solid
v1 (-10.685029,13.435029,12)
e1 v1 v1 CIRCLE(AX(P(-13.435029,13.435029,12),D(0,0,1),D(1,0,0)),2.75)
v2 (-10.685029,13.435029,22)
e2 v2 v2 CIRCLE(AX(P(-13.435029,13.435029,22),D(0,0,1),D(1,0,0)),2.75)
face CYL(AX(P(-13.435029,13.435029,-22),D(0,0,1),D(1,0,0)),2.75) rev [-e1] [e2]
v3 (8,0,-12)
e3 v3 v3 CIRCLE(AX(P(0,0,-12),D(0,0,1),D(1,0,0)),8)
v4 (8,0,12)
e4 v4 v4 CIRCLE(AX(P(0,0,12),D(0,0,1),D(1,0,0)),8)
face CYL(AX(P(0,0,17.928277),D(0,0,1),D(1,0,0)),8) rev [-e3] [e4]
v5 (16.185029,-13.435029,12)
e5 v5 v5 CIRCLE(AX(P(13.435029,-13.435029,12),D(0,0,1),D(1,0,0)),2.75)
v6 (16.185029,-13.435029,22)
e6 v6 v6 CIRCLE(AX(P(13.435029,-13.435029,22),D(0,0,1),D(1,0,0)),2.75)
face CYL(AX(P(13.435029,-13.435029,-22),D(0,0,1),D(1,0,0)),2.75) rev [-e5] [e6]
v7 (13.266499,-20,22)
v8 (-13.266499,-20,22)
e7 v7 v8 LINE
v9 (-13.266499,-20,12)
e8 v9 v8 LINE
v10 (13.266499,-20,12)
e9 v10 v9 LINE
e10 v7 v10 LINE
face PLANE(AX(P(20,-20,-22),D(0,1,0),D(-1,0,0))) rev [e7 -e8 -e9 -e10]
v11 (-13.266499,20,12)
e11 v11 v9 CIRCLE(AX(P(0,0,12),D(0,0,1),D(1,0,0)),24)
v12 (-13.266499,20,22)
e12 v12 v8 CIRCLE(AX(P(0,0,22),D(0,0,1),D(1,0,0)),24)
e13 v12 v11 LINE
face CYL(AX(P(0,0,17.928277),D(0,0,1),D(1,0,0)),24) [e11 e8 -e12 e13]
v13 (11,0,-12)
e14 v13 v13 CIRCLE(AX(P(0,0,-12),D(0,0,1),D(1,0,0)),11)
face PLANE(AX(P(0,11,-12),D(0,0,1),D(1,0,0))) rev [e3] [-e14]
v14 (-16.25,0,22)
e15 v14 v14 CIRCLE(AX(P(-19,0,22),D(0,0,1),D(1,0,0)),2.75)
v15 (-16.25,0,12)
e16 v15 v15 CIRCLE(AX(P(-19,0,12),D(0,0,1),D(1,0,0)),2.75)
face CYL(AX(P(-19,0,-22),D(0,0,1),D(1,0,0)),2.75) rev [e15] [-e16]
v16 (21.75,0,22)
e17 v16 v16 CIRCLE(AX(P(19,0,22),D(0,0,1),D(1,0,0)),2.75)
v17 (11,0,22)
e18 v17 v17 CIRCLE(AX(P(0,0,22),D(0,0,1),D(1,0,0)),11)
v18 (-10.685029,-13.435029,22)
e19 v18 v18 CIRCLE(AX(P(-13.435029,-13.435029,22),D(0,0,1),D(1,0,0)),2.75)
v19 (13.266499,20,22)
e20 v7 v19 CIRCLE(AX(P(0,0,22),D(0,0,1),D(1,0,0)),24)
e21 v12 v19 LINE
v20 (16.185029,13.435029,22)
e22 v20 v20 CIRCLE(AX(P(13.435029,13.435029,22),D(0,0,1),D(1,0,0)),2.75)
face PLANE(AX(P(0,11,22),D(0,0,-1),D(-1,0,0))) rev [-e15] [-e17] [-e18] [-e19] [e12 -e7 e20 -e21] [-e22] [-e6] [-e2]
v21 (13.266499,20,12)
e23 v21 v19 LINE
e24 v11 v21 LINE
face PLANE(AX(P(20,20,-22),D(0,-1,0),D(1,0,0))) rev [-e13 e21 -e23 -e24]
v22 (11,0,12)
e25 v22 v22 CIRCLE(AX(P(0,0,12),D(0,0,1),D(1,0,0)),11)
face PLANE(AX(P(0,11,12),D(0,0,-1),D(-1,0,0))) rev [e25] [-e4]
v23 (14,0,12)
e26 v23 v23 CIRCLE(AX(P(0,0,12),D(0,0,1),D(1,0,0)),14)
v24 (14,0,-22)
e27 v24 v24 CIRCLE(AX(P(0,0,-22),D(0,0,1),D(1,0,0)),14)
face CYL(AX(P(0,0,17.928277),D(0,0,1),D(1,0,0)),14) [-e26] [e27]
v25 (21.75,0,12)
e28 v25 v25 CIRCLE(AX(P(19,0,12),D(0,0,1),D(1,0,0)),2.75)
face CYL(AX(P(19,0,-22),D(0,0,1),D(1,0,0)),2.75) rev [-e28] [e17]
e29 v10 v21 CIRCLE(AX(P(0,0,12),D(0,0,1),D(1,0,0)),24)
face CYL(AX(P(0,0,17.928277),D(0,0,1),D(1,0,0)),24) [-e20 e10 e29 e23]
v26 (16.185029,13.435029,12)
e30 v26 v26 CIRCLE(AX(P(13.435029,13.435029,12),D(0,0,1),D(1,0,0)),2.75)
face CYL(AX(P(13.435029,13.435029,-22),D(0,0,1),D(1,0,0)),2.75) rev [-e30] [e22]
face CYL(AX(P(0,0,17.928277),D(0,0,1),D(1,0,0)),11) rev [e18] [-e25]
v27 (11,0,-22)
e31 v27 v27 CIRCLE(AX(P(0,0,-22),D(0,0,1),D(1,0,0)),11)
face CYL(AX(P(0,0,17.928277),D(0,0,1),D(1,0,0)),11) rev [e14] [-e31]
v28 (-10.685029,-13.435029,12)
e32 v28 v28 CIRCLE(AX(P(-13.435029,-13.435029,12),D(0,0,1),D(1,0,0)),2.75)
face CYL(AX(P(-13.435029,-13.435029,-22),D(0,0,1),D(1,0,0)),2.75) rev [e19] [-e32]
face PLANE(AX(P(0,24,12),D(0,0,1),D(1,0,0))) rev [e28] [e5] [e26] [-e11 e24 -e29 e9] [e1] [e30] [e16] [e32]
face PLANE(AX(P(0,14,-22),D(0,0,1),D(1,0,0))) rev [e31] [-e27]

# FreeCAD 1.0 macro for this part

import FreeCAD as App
import Part
import Sketcher
from FreeCAD import Vector

doc = App.newDocument("Part")
params = doc.addObject("Spreadsheet::Sheet", "Params")
for row, (alias, value) in enumerate([
    ("sketch1_width", "3 mm"),
    ("sketch1_width2", "10 mm"),
    ("sketch1_height", "34 mm"),
    ("revolution_angle", "360 deg"),
    ("sketch2_width", "40 mm"),
    ("sketch2_height", "10 mm"),
    ("sketch3_diameter", "5.5 mm"),
], start=1):
    params.set(f"A{row}", alias)
    params.set(f"B{row}", "=" + value)
    params.setAlias(f"B{row}", alias)

body = doc.addObject("PartDesign::Body", "Body")

sketch1 = doc.addObject("Sketcher::SketchObject", "Sketch")
body.addObject(sketch1)
sketch1.AttachmentSupport = (doc.YZ_Plane, [""])
sketch1.MapMode = "FlatFace"
sketch1.addGeometry(Part.LineSegment(Vector(11, -12, 0), Vector(11, -22, 0)), False)
sketch1.addGeometry(Part.LineSegment(Vector(11, -22, 0), Vector(14, -22, 0)), False)
sketch1.addGeometry(Part.LineSegment(Vector(14, -22, 0), Vector(14, 12, 0)), False)
sketch1.addGeometry(Part.LineSegment(Vector(14, 12, 0), Vector(24, 12, 0)), False)
sketch1.addGeometry(Part.LineSegment(Vector(24, 12, 0), Vector(24, 22, 0)), False)
sketch1.addGeometry(Part.LineSegment(Vector(24, 22, 0), Vector(11, 22, 0)), False)
sketch1.addGeometry(Part.LineSegment(Vector(11, 22, 0), Vector(11, 12, 0)), False)
sketch1.addGeometry(Part.LineSegment(Vector(11, 12, 0), Vector(8, 12, 0)), False)
sketch1.addGeometry(Part.LineSegment(Vector(8, 12, 0), Vector(8, -12, 0)), False)
sketch1.addGeometry(Part.LineSegment(Vector(8, -12, 0), Vector(11, -12, 0)), False)
sketch1.addConstraint(Sketcher.Constraint("Coincident", 0, 2, 1, 1))
sketch1.addConstraint(Sketcher.Constraint("Coincident", 1, 2, 2, 1))
sketch1.addConstraint(Sketcher.Constraint("Coincident", 2, 2, 3, 1))
sketch1.addConstraint(Sketcher.Constraint("Coincident", 3, 2, 4, 1))
sketch1.addConstraint(Sketcher.Constraint("Coincident", 4, 2, 5, 1))
sketch1.addConstraint(Sketcher.Constraint("Coincident", 5, 2, 6, 1))
sketch1.addConstraint(Sketcher.Constraint("Coincident", 6, 2, 7, 1))
sketch1.addConstraint(Sketcher.Constraint("Coincident", 7, 2, 8, 1))
sketch1.addConstraint(Sketcher.Constraint("Coincident", 8, 2, 9, 1))
sketch1.addConstraint(Sketcher.Constraint("Coincident", 9, 2, 0, 1))
sketch1.addConstraint(Sketcher.Constraint("Vertical", 0))
sketch1.addConstraint(Sketcher.Constraint("Horizontal", 1))
sketch1.addConstraint(Sketcher.Constraint("Vertical", 2))
sketch1.addConstraint(Sketcher.Constraint("Horizontal", 3))
sketch1.addConstraint(Sketcher.Constraint("Vertical", 4))
sketch1.addConstraint(Sketcher.Constraint("Horizontal", 5))
sketch1.addConstraint(Sketcher.Constraint("Vertical", 6))
sketch1.addConstraint(Sketcher.Constraint("Horizontal", 7))
sketch1.addConstraint(Sketcher.Constraint("Vertical", 8))
sketch1.addConstraint(Sketcher.Constraint("Horizontal", 9))
sketch1.addConstraint(Sketcher.Constraint("Symmetric", 0, 2, 5, 2, -1))
sketch1.addConstraint(Sketcher.Constraint("Horizontal", 3, 2, 6, 2))
sketch1.addConstraint(Sketcher.Constraint("Equal", 1, 7))
sketch1.addConstraint(Sketcher.Constraint("Equal", 3, 0))
sketch1.addConstraint(Sketcher.Constraint("Equal", 0, 4))
sketch1.addConstraint(Sketcher.Constraint("DistanceX", 1, 1, 1, 2, 3.0))
sketch1.addConstraint(Sketcher.Constraint("DistanceX", 3, 1, 3, 2, 10.0))
sketch1.addConstraint(Sketcher.Constraint("DistanceY", 2, 1, 2, 2, 34.0))
sketch1.addConstraint(Sketcher.Constraint("DistanceX", -1, 1, 0, 2, 11.0))
sketch1.setExpression("Constraints[25]", "Params.sketch1_width")
sketch1.setExpression("Constraints[26]", "Params.sketch1_width2")
sketch1.setExpression("Constraints[27]", "Params.sketch1_height")
revolution = doc.addObject("PartDesign::Revolution", "Revolution")
body.addObject(revolution)
revolution.Profile = sketch1
revolution.ReferenceAxis = (sketch1, ["V_Axis"])
revolution.setExpression("Angle", "Params.revolution_angle")

sketch2 = doc.addObject("Sketcher::SketchObject", "Sketch001")
body.addObject(sketch2)
sketch2.AttachmentSupport = (doc.XY_Plane, [""])
sketch2.MapMode = "FlatFace"
sketch2.AttachmentOffset = App.Placement(Vector(0, 0, 22), App.Rotation())
sketch2.addGeometry(Part.LineSegment(Vector(-20, 30, 0), Vector(-20, 20, 0)), False)
sketch2.addGeometry(Part.LineSegment(Vector(-20, 20, 0), Vector(20, 20, 0)), False)
sketch2.addGeometry(Part.LineSegment(Vector(20, 20, 0), Vector(20, 30, 0)), False)
sketch2.addGeometry(Part.LineSegment(Vector(20, 30, 0), Vector(-20, 30, 0)), False)
sketch2.addGeometry(Part.LineSegment(Vector(-20, -20, 0), Vector(-20, -30, 0)), False)
sketch2.addGeometry(Part.LineSegment(Vector(-20, -30, 0), Vector(20, -30, 0)), False)
sketch2.addGeometry(Part.LineSegment(Vector(20, -30, 0), Vector(20, -20, 0)), False)
sketch2.addGeometry(Part.LineSegment(Vector(20, -20, 0), Vector(-20, -20, 0)), False)
sketch2.addConstraint(Sketcher.Constraint("Coincident", 0, 2, 1, 1))
sketch2.addConstraint(Sketcher.Constraint("Coincident", 1, 2, 2, 1))
sketch2.addConstraint(Sketcher.Constraint("Coincident", 2, 2, 3, 1))
sketch2.addConstraint(Sketcher.Constraint("Coincident", 3, 2, 0, 1))
sketch2.addConstraint(Sketcher.Constraint("Coincident", 4, 2, 5, 1))
sketch2.addConstraint(Sketcher.Constraint("Coincident", 5, 2, 6, 1))
sketch2.addConstraint(Sketcher.Constraint("Coincident", 6, 2, 7, 1))
sketch2.addConstraint(Sketcher.Constraint("Coincident", 7, 2, 4, 1))
sketch2.addConstraint(Sketcher.Constraint("Vertical", 0))
sketch2.addConstraint(Sketcher.Constraint("Horizontal", 1))
sketch2.addConstraint(Sketcher.Constraint("Vertical", 2))
sketch2.addConstraint(Sketcher.Constraint("Horizontal", 3))
sketch2.addConstraint(Sketcher.Constraint("Vertical", 4))
sketch2.addConstraint(Sketcher.Constraint("Horizontal", 5))
sketch2.addConstraint(Sketcher.Constraint("Vertical", 6))
sketch2.addConstraint(Sketcher.Constraint("Horizontal", 7))
sketch2.addConstraint(Sketcher.Constraint("Symmetric", 2, 2, 4, 2, -1, 1))
sketch2.addConstraint(Sketcher.Constraint("Symmetric", 0, 2, 6, 2, -1, 1))
sketch2.addConstraint(Sketcher.Constraint("Vertical", 3, 2, 4, 2))
sketch2.addConstraint(Sketcher.Constraint("DistanceX", 1, 1, 1, 2, 40.0))
sketch2.addConstraint(Sketcher.Constraint("DistanceY", 0, 2, 0, 1, 10.0))
sketch2.addConstraint(Sketcher.Constraint("DistanceY", -1, 1, 0, 2, 20.0))
sketch2.setExpression("Constraints[19]", "Params.sketch2_width")
sketch2.setExpression("Constraints[20]", "Params.sketch2_height")
pocket1 = doc.addObject("PartDesign::Pocket", "Pocket")
body.addObject(pocket1)
pocket1.Profile = sketch2
pocket1.Type = "ThroughAll"

sketch3 = doc.addObject("Sketcher::SketchObject", "Sketch002")
body.addObject(sketch3)
sketch3.AttachmentSupport = (doc.XY_Plane, [""])
sketch3.MapMode = "FlatFace"
sketch3.AttachmentOffset = App.Placement(Vector(0, 0, 22), App.Rotation())
sketch3.addGeometry(Part.Circle(Vector(-19, 0, 0), Vector(0, 0, 1), 2.8), False)
sketch3.addGeometry(Part.Circle(Vector(-13.4, 13.4, 0), Vector(0, 0, 1), 2.8), False)
sketch3.addGeometry(Part.Circle(Vector(13.4, 13.4, 0), Vector(0, 0, 1), 2.8), False)
sketch3.addGeometry(Part.Circle(Vector(19, 0, 0), Vector(0, 0, 1), 2.8), False)
sketch3.addGeometry(Part.Circle(Vector(13.4, -13.4, 0), Vector(0, 0, 1), 2.8), False)
sketch3.addGeometry(Part.Circle(Vector(-13.4, -13.4, 0), Vector(0, 0, 1), 2.8), False)
sketch3.addConstraint(Sketcher.Constraint("Equal", 0, 1))
sketch3.addConstraint(Sketcher.Constraint("Equal", 1, 2))
sketch3.addConstraint(Sketcher.Constraint("Equal", 2, 3))
sketch3.addConstraint(Sketcher.Constraint("Equal", 3, 4))
sketch3.addConstraint(Sketcher.Constraint("Equal", 4, 5))
sketch3.addConstraint(Sketcher.Constraint("Symmetric", 0, 3, 3, 3, -1, 1))
sketch3.addConstraint(Sketcher.Constraint("Symmetric", 1, 3, 4, 3, -1, 1))
sketch3.addConstraint(Sketcher.Constraint("Symmetric", 2, 3, 5, 3, -1, 1))
sketch3.addConstraint(Sketcher.Constraint("Symmetric", 1, 3, 2, 3, -2))
sketch3.addConstraint(Sketcher.Constraint("PointOnObject", 0, 3, -1))
sketch3.addConstraint(Sketcher.Constraint("Diameter", 0, 5.5))
sketch3.addConstraint(Sketcher.Constraint("DistanceX", 0, 3, -1, 1, 19.0))
sketch3.addConstraint(Sketcher.Constraint("DistanceX", 1, 3, -1, 1, 13.435029))
sketch3.addConstraint(Sketcher.Constraint("DistanceY", -1, 1, 1, 3, 13.435029))
sketch3.setExpression("Constraints[10]", "Params.sketch3_diameter")
pocket2 = doc.addObject("PartDesign::Pocket", "Pocket001")
body.addObject(pocket2)
pocket2.Profile = sketch3
pocket2.Type = "ThroughAll"

doc.recompute()
